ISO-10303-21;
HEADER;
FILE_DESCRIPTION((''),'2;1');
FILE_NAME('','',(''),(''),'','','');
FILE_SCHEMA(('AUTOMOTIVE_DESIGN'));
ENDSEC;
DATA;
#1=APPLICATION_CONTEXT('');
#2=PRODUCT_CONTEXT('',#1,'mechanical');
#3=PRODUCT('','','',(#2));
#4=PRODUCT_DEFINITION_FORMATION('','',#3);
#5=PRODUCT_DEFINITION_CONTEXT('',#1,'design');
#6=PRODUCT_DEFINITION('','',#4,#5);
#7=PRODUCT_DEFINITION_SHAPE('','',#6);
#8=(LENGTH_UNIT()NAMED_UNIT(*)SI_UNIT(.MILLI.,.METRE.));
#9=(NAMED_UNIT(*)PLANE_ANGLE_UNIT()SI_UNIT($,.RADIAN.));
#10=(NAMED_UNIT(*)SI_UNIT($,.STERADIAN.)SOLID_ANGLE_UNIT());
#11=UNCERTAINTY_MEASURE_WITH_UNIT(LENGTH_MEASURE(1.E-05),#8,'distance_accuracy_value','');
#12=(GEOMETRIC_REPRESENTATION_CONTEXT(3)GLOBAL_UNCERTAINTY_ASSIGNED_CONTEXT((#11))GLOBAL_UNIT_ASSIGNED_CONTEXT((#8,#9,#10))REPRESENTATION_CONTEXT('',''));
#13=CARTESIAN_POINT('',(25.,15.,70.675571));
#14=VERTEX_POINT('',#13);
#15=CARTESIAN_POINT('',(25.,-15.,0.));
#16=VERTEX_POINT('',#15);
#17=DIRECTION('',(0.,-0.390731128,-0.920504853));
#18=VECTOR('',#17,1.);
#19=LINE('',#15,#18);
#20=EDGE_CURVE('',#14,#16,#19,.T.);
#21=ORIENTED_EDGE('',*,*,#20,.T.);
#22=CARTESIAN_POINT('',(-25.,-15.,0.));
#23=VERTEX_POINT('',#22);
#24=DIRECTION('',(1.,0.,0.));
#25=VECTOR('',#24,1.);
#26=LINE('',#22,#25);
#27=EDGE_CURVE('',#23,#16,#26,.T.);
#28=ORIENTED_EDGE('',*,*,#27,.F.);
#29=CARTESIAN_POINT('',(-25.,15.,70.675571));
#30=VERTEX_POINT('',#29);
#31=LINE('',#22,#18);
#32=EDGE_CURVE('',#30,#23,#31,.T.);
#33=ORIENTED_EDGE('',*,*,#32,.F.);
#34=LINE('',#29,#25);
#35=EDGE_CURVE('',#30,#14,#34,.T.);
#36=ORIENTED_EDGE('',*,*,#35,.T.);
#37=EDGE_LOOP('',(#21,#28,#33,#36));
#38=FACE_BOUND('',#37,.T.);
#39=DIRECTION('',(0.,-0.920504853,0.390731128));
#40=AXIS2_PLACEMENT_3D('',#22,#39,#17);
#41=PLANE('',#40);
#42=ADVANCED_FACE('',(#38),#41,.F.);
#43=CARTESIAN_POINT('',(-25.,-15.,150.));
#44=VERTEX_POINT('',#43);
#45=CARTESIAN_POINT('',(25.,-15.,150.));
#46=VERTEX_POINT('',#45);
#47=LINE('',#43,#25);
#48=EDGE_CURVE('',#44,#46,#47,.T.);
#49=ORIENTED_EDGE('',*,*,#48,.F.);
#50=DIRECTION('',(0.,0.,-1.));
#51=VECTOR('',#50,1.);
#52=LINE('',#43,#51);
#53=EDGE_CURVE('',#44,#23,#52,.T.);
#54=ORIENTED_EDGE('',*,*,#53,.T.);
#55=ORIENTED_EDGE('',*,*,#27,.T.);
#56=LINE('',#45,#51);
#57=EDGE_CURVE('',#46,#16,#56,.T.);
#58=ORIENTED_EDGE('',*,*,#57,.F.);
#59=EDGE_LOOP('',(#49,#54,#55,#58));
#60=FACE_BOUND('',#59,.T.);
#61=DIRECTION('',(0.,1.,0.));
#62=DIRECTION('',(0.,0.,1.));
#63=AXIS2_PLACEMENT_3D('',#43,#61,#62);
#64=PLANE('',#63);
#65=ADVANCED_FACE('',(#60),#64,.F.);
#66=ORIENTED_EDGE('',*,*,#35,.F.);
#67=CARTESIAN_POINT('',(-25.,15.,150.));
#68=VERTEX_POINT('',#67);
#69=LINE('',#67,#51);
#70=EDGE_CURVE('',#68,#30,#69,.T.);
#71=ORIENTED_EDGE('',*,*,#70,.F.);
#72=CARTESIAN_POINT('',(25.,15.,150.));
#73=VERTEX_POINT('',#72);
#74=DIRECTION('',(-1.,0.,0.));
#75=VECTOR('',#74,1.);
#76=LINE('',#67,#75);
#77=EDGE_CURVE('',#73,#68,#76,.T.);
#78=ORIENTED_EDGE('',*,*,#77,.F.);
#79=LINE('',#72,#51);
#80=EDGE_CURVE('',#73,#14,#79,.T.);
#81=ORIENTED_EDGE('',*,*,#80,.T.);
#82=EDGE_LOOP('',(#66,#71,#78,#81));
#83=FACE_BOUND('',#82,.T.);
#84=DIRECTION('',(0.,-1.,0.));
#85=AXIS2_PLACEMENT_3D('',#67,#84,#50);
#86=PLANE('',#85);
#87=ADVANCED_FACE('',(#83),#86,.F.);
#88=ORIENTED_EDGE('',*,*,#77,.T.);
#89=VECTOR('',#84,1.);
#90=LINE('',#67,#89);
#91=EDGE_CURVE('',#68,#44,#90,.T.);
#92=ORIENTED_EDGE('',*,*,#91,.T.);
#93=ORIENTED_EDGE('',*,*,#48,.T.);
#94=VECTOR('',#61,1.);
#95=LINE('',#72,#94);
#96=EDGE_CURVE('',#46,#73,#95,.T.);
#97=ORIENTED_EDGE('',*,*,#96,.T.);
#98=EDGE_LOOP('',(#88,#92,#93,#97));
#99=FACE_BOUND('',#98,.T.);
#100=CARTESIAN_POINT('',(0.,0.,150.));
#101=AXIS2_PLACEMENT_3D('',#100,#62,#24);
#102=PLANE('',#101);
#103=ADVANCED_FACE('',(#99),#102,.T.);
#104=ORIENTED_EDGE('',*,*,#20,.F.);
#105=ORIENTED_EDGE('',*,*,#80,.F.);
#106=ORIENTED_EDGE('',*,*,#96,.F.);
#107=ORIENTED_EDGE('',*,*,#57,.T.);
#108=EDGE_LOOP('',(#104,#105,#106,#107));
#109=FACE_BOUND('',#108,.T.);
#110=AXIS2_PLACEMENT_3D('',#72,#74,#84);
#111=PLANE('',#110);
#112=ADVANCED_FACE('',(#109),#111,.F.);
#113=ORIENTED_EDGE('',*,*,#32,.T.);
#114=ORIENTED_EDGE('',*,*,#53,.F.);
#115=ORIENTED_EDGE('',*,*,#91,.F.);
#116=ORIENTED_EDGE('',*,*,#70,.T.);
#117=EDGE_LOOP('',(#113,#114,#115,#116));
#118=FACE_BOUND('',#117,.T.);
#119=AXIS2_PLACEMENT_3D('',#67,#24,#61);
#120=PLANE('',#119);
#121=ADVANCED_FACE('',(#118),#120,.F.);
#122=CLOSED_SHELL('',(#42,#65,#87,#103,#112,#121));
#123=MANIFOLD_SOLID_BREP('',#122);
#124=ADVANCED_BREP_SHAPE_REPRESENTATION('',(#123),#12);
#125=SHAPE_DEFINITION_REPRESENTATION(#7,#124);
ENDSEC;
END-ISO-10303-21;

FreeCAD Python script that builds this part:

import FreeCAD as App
import Part
import Sketcher
Q = App.Units.Quantity

doc = App.newDocument("Part")
body = doc.addObject("PartDesign::Body", "Body")

# Sketch on XY plane
sketch1 = body.newObject("Sketcher::SketchObject", "Sketch")
sketch1.AttachmentSupport = (doc.getObject("XY_Plane"), [""])
sketch1.MapMode = "FlatFace"
sketch1.addGeometry([
    Part.LineSegment(App.Vector(-25, 15, 0), App.Vector(-25, -15, 0)),
    Part.LineSegment(App.Vector(-25, -15, 0), App.Vector(25, -15, 0)),
    Part.LineSegment(App.Vector(25, -15, 0), App.Vector(25, 15, 0)),
    Part.LineSegment(App.Vector(25, 15, 0), App.Vector(-25, 15, 0)),
], False)
sketch1.addConstraint([
    Sketcher.Constraint("Coincident", 0, 2, 1, 1),
    Sketcher.Constraint("Coincident", 1, 2, 2, 1),
    Sketcher.Constraint("Coincident", 2, 2, 3, 1),
    Sketcher.Constraint("Coincident", 3, 2, 0, 1),
    Sketcher.Constraint("Vertical", 0),
    Sketcher.Constraint("Horizontal", 1),
    Sketcher.Constraint("Vertical", 2),
    Sketcher.Constraint("Horizontal", 3),
    Sketcher.Constraint("Symmetric", 0, 2, 2, 2, -1, 1),
    Sketcher.Constraint("DistanceX", 1, 1, 1, 2, 50.0),
    Sketcher.Constraint("DistanceY", 0, 2, 0, 1, 30.0),
])
pad1 = body.newObject("PartDesign::Pad", "Pad")
pad1.Profile = sketch1
pad1.Length = 150

# Sketch on YZ plane
sketch2 = body.newObject("Sketcher::SketchObject", "Sketch001")
sketch2.AttachmentSupport = (doc.getObject("YZ_Plane"), [""])
sketch2.MapMode = "FlatFace"
sketch2.AttachmentOffset = App.Placement(App.Vector(0, 0, 25), App.Rotation())
sketch2.addGeometry([
    Part.LineSegment(App.Vector(15, 70.675571, 0), App.Vector(-15, 0, 0)),
    Part.LineSegment(App.Vector(-15, 0, 0), App.Vector(15, 0, 0)),
    Part.LineSegment(App.Vector(15, 0, 0), App.Vector(15, 70.675571, 0)),
], False)
sketch2.addConstraint([
    Sketcher.Constraint("Coincident", 0, 2, 1, 1),
    Sketcher.Constraint("Coincident", 1, 2, 2, 1),
    Sketcher.Constraint("Coincident", 2, 2, 0, 1),
    Sketcher.Constraint("Horizontal", 1),
    Sketcher.Constraint("Vertical", 2),
    Sketcher.Constraint("Symmetric", 0, 2, 1, 2, -1, 1),
    Sketcher.Constraint("DistanceX", 1, 1, 1, 2, 30.0),
    Sketcher.Constraint("Angle", 0, Q("-113 deg")),
])
pocket1 = body.newObject("PartDesign::Pocket", "Pocket")
pocket1.Profile = sketch2
pocket1.Type = "ThroughAll"

doc.recompute()
